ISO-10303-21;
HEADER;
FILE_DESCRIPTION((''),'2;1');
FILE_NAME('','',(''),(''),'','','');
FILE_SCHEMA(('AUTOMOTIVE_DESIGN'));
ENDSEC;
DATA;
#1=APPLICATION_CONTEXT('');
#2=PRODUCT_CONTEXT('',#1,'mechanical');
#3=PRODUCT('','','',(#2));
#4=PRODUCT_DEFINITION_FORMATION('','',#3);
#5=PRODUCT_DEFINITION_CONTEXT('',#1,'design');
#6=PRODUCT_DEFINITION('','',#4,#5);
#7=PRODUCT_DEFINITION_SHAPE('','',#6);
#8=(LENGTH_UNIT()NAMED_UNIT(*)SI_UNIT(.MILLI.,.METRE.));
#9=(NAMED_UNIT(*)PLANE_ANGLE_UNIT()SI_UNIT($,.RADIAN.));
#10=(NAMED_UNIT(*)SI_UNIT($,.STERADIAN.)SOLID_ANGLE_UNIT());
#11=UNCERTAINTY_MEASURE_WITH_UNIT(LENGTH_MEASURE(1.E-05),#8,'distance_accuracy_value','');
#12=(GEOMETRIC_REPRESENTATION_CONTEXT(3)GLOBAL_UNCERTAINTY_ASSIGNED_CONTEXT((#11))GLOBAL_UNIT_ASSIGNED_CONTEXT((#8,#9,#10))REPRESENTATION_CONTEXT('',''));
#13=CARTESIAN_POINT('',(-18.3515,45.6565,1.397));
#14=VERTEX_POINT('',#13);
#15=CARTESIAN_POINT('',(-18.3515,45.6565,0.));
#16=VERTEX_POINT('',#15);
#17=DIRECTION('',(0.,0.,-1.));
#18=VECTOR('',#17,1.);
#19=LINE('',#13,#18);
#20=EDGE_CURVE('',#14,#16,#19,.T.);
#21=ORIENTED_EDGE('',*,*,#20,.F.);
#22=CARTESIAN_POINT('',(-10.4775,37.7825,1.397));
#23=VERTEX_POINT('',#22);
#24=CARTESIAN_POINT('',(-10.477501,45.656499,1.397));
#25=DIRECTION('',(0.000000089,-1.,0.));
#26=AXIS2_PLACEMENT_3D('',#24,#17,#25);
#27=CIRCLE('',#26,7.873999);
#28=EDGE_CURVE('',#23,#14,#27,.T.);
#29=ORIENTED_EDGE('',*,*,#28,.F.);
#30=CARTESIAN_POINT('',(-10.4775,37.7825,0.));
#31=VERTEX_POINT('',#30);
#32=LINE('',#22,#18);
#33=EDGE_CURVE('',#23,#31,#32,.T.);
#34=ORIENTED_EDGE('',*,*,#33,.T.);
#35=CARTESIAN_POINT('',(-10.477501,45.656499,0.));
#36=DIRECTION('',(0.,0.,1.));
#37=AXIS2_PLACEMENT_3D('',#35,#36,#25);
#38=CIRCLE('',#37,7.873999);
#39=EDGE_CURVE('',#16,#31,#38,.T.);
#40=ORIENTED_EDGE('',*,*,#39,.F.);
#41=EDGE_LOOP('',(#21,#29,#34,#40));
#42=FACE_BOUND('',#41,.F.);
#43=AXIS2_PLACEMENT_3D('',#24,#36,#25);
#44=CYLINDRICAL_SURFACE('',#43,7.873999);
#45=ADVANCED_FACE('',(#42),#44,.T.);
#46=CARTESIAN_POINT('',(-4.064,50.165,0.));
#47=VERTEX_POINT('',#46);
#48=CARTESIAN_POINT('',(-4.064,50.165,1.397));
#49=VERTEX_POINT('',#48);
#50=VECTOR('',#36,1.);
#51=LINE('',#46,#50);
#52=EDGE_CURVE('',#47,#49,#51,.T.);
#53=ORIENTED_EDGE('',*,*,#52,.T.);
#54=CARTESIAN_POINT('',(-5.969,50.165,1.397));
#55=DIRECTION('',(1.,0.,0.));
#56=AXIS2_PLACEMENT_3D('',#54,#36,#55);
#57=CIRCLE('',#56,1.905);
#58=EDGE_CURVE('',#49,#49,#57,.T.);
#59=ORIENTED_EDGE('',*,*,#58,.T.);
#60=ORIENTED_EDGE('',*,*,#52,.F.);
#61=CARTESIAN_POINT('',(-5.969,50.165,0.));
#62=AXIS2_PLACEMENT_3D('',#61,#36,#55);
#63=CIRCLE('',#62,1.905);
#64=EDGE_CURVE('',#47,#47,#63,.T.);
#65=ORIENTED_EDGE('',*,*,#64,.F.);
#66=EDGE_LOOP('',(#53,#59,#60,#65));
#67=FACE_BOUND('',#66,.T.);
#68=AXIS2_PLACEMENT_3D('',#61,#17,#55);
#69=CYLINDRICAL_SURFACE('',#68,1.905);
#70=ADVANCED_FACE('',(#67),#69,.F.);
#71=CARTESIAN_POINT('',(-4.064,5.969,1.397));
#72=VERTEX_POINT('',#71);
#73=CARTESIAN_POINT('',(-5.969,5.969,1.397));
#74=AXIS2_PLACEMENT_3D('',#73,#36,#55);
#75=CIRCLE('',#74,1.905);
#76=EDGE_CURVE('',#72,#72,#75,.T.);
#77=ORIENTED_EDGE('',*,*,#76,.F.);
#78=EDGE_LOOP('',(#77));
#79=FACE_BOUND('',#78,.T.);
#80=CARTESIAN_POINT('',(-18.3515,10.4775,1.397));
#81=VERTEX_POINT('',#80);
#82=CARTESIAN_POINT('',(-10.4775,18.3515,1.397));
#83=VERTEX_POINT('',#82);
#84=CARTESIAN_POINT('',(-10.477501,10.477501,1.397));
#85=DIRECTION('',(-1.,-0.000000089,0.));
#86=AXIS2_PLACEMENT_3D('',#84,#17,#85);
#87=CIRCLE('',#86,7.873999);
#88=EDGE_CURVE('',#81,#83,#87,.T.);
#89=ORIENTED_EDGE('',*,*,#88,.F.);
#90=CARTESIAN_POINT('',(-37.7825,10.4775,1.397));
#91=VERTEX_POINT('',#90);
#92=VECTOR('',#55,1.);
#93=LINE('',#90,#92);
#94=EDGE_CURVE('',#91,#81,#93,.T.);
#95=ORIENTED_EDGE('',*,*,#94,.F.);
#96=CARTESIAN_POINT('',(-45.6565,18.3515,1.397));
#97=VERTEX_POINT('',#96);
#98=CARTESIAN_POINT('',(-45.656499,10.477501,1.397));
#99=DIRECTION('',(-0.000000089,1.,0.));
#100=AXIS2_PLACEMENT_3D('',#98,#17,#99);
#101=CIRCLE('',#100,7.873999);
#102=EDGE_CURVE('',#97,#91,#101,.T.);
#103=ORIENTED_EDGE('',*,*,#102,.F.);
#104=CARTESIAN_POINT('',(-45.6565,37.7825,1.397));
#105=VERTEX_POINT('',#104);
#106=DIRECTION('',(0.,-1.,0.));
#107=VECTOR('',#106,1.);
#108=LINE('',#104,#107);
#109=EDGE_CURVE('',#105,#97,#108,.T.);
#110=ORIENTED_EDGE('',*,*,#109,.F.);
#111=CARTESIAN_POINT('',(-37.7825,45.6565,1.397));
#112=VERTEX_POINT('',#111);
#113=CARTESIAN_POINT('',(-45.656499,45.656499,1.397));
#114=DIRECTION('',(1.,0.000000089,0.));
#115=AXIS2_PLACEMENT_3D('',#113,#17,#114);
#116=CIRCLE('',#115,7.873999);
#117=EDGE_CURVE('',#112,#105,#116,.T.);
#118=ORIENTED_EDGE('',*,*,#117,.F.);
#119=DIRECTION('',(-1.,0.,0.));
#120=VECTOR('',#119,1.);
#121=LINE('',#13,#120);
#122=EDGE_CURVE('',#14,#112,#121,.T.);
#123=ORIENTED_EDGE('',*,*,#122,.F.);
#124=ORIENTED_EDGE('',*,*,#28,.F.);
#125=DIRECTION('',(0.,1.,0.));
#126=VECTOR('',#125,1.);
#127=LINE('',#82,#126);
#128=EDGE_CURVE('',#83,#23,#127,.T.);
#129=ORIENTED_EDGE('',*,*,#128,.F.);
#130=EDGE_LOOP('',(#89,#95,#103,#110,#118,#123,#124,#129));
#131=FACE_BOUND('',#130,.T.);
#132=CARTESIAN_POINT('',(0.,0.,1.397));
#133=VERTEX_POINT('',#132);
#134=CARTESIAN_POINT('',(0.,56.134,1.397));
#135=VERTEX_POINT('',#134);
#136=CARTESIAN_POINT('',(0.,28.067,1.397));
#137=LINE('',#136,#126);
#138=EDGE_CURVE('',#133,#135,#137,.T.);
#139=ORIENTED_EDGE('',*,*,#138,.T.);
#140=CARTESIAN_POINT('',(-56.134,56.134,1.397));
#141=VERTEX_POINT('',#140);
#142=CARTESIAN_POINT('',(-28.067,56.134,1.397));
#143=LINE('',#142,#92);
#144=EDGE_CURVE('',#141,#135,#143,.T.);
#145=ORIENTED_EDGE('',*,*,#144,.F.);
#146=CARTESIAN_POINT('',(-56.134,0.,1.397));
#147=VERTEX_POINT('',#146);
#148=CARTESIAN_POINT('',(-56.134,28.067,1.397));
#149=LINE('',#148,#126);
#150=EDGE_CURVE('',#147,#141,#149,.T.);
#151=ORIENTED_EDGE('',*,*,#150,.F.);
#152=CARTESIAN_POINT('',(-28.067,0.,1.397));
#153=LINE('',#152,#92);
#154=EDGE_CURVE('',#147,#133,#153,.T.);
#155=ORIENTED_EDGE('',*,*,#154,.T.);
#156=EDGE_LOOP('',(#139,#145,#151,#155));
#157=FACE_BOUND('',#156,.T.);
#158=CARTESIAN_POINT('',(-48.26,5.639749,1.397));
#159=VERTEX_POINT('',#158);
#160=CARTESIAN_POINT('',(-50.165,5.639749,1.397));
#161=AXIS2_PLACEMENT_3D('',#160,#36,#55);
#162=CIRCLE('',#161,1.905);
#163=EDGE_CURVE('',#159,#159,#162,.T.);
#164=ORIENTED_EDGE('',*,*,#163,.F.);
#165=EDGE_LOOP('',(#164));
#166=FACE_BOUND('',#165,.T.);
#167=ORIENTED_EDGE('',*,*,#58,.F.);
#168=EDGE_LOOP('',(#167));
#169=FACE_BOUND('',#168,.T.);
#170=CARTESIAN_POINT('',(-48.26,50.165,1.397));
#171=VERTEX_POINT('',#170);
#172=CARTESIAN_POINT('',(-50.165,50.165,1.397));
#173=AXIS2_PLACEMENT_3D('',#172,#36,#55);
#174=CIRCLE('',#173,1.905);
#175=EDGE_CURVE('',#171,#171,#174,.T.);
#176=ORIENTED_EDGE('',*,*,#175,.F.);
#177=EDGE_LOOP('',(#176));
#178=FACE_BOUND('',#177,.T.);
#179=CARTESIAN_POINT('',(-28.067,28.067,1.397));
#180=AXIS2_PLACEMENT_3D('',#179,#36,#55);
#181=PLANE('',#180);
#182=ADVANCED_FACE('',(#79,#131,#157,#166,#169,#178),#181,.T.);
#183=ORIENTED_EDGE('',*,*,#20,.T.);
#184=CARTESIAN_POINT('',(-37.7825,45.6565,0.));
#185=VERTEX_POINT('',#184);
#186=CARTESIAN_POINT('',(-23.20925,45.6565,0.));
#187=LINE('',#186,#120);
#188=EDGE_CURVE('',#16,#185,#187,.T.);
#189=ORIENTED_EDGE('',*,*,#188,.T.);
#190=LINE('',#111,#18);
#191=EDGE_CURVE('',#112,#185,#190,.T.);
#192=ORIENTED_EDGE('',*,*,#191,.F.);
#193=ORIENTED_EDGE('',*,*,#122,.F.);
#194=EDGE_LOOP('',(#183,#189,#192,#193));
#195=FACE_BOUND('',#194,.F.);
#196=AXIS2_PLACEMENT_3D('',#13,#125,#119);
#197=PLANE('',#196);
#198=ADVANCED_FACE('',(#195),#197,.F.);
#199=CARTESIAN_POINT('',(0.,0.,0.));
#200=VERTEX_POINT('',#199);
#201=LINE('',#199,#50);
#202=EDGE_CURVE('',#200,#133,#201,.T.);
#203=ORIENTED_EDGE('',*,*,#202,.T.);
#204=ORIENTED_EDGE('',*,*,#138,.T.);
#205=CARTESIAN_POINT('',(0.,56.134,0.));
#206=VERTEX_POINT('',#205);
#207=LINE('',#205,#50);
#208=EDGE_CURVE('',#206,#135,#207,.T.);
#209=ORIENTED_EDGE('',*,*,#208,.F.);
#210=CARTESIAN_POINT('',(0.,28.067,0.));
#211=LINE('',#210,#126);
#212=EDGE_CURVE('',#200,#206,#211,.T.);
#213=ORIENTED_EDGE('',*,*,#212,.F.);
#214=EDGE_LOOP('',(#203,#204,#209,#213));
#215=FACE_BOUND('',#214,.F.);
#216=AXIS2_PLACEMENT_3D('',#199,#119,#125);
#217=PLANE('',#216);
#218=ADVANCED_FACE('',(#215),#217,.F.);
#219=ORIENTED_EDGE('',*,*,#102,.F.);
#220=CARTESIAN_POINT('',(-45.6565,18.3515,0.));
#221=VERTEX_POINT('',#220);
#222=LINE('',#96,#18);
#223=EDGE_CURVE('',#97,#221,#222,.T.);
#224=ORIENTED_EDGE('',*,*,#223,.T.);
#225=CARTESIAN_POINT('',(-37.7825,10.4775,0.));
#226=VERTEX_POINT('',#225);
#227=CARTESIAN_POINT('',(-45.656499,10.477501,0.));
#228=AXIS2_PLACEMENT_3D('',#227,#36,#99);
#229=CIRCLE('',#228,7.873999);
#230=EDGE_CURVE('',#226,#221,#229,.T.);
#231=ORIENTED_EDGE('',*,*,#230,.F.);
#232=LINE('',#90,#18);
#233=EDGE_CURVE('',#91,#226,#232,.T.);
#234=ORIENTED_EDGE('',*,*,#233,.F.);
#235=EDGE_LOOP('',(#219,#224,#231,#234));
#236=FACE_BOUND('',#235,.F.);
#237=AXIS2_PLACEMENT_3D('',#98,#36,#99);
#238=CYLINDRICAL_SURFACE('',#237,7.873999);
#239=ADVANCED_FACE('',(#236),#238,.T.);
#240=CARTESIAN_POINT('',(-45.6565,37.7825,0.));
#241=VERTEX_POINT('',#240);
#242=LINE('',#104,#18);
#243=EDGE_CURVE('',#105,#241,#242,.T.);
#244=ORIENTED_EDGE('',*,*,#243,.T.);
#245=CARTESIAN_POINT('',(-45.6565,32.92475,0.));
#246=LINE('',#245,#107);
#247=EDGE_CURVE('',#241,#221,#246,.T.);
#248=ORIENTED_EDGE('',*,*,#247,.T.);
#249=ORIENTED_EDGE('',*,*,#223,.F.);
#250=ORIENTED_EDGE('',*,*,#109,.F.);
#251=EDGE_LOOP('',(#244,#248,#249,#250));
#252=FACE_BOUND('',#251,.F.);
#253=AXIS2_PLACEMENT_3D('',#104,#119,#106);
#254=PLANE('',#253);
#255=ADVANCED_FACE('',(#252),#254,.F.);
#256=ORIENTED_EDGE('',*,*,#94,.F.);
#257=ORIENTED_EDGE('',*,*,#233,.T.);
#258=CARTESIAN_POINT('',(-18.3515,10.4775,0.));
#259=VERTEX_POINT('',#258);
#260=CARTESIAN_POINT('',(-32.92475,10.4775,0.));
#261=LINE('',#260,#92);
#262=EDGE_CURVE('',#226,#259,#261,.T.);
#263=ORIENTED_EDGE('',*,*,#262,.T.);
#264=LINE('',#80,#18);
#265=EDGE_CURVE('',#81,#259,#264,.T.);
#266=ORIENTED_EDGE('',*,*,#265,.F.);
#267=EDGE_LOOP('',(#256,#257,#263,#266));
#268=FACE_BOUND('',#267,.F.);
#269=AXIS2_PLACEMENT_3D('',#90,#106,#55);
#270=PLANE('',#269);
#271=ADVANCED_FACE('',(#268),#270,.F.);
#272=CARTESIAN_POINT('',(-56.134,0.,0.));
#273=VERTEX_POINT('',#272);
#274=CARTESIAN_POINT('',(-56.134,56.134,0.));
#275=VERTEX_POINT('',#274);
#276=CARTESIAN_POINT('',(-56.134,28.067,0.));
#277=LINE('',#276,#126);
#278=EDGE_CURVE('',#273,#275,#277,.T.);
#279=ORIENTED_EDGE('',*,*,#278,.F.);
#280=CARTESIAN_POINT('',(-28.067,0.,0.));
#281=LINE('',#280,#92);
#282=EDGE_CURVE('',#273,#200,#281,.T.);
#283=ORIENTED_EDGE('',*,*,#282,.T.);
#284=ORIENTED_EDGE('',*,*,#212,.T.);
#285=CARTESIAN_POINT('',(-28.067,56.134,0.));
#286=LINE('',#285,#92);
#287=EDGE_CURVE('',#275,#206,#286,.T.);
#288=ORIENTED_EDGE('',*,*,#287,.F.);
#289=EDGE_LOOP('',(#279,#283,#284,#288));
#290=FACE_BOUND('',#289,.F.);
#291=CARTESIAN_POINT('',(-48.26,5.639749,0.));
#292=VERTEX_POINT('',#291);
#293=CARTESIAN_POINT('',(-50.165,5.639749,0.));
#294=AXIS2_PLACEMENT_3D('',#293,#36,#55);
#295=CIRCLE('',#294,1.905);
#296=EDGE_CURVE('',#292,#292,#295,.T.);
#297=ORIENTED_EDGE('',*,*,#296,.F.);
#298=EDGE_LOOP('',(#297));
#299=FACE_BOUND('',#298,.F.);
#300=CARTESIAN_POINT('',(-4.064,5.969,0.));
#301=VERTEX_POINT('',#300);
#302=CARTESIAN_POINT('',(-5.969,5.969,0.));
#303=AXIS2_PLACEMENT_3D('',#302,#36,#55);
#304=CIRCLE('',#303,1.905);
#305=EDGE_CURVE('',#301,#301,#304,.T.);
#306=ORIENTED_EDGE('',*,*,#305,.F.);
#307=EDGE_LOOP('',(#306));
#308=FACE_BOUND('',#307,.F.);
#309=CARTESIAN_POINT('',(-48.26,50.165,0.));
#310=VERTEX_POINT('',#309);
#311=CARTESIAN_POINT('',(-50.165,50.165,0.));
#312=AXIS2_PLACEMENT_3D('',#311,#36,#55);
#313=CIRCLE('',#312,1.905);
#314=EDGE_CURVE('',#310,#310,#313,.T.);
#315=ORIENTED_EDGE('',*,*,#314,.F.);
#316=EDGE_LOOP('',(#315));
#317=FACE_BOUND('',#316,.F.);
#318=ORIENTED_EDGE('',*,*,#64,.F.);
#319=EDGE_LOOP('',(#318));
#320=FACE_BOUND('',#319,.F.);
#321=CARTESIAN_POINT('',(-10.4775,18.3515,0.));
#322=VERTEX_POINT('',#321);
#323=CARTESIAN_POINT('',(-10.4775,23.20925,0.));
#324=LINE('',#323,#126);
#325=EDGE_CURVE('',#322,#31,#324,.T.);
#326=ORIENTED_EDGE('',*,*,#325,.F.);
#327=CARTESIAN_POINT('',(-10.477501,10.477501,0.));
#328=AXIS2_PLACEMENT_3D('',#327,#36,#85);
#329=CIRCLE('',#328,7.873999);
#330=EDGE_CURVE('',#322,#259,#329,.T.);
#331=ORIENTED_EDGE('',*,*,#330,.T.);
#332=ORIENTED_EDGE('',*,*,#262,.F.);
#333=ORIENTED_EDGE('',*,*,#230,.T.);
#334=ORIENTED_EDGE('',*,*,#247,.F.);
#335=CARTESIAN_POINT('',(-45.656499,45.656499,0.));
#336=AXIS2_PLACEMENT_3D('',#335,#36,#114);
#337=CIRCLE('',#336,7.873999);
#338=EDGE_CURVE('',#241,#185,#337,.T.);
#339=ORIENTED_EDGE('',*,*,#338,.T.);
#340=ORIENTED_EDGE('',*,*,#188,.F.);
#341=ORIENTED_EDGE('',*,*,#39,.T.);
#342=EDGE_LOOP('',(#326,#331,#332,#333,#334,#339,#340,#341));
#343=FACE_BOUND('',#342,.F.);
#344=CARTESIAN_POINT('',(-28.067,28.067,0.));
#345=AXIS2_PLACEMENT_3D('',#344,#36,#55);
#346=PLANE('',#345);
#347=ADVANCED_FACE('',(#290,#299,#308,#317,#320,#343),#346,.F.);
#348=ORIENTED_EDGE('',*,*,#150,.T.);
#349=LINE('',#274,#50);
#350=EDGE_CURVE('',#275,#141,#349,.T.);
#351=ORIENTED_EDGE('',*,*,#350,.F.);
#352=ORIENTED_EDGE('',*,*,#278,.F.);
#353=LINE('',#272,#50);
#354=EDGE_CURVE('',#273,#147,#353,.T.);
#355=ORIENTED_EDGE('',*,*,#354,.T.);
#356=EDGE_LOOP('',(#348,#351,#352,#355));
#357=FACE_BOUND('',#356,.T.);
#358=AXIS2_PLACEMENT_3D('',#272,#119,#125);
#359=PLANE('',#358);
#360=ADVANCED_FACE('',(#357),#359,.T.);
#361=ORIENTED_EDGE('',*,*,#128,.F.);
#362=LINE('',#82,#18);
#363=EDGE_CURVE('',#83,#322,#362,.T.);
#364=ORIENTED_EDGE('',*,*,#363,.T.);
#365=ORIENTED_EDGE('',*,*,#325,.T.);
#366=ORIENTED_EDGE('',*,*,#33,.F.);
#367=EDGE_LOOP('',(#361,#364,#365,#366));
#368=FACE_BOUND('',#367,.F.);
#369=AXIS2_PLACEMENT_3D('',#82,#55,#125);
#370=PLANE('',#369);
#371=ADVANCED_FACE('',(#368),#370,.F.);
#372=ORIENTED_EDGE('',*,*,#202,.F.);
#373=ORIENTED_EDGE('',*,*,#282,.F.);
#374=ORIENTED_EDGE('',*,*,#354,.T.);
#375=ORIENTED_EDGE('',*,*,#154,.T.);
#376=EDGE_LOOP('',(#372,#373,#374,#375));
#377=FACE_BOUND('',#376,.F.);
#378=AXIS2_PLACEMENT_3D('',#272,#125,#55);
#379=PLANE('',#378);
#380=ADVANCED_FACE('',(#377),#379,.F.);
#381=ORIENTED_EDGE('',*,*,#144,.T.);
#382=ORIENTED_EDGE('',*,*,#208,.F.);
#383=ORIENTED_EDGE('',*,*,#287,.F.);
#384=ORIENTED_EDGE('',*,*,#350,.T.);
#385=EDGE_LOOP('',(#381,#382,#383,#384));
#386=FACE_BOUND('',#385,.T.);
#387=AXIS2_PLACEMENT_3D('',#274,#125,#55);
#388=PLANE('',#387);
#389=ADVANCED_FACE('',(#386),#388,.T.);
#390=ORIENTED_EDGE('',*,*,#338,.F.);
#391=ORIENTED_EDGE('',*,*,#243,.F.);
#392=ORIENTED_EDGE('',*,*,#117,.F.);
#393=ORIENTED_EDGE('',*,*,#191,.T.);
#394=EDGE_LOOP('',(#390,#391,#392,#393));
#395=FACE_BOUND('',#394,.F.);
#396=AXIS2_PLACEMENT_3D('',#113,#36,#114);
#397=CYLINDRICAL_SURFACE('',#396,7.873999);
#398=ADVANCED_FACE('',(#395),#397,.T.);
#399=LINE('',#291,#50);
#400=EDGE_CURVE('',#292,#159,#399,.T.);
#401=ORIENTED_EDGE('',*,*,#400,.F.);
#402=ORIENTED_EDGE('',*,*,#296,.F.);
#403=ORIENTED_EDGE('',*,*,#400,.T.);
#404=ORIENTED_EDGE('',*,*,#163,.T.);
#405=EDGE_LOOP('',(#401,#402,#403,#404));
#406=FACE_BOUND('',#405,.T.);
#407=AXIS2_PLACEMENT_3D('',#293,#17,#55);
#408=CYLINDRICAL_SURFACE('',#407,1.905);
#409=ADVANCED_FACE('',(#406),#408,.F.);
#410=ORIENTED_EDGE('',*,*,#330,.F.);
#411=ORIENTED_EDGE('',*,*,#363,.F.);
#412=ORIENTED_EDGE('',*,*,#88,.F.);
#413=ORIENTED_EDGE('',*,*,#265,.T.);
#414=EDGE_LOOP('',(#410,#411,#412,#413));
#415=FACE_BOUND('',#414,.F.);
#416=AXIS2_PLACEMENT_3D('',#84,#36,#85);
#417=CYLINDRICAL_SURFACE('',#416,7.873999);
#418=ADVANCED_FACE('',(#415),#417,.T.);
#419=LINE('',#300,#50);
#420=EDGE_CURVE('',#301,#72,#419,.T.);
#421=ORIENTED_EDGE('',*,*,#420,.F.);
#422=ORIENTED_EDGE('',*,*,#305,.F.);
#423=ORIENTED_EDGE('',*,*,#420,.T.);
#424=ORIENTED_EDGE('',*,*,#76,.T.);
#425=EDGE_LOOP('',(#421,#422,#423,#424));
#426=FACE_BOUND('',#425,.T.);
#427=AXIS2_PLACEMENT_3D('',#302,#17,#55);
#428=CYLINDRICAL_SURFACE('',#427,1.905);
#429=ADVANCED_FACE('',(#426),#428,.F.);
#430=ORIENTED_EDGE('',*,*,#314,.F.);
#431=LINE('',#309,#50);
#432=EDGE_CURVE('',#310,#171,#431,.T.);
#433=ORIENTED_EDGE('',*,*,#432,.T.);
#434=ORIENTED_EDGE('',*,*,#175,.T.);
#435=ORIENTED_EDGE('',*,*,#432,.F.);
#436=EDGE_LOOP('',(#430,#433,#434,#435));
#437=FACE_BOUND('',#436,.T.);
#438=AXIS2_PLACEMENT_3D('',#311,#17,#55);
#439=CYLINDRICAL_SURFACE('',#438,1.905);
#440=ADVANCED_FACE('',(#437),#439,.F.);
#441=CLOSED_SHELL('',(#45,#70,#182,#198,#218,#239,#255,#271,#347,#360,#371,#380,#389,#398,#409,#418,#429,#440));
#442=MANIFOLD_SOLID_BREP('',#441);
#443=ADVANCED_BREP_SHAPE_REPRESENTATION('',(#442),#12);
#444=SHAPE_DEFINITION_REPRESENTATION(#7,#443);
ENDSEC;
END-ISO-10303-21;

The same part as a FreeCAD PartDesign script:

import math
import FreeCAD as App
import Part
import Sketcher
from FreeCAD import Vector
Q = App.Units.Quantity


def add_polygon(sketch, points):
    """Adds a closed chain of lines whose ends are joined by coincident constraints."""
    first, n = sketch.GeometryCount, len(points)
    for a, b in zip(points, points[1:] + points[:1]):
        sketch.addGeometry(Part.LineSegment(App.Vector(*a, 0), App.Vector(*b, 0)), False)
    for i in range(n):
        sketch.addConstraint(Sketcher.Constraint("Coincident", first + i, 2, first + (i + 1) % n, 1))

doc = App.newDocument("Part")
body = doc.addObject("PartDesign::Body", "Body")

sketch1 = body.newObject("Sketcher::SketchObject", "Sketch")
sketch1.AttachmentSupport = (doc.getObject("XY_Plane"), [""])
sketch1.MapMode = "FlatFace"
add_polygon(sketch1, [(-56.1, 56.1), (-56.1, 0), (0, 0), (0, 56.1)])
sketch1.addGeometry(Part.Circle(Vector(-50.2, 5.6, 0), Vector(0, 0, 1), 1.9), False)
sketch1.addGeometry(Part.Circle(Vector(-6, 6, 0), Vector(0, 0, 1), 1.9), False)
sketch1.addGeometry(Part.Circle(Vector(-50.2, 50.2, 0), Vector(0, 0, 1), 1.9), False)
sketch1.addGeometry(Part.Circle(Vector(-6, 50.2, 0), Vector(0, 0, 1), 1.9), False)
sketch1.addConstraint([
    Sketcher.Constraint("Vertical", 0),
    Sketcher.Constraint("Horizontal", 1),
    Sketcher.Constraint("Vertical", 2),
    Sketcher.Constraint("Horizontal", 3),
    Sketcher.Constraint("Coincident", 1, 2, -1, 1),
    Sketcher.Constraint("Equal", 4, 5),
    Sketcher.Constraint("Equal", 5, 6),
    Sketcher.Constraint("Equal", 6, 7),
    Sketcher.Constraint("Horizontal", 6, 3, 7, 3),
    Sketcher.Constraint("Vertical", 4, 3, 6, 3),
    Sketcher.Constraint("Vertical", 5, 3, 7, 3),
    Sketcher.Constraint("Equal", 3, 0),
    Sketcher.Constraint("Diameter", 4, Q("0.15 in")),
    Sketcher.Constraint("DistanceX", 1, 1, 1, 2, Q("2.21 in")),
    Sketcher.Constraint("DistanceX", 4, 3, 5, 3, Q("1.74 in")),
    Sketcher.Constraint("DistanceY", 5, 3, 6, 3, Q("1.74 in")),
    Sketcher.Constraint("DistanceX", 4, 3, -1, 1, Q("1.975 in")),
    Sketcher.Constraint("DistanceY", -1, 1, 5, 3, Q("0.235 in")),
    Sketcher.Constraint("DistanceY", -1, 1, 4, 3, Q("5.639749 mm")),
])
pad1 = body.newObject("PartDesign::Pad", "Pad")
pad1.Profile = sketch1
pad1.Length = Q("0.055 in")

sketch2 = body.newObject("Sketcher::SketchObject", "Sketch001")
sketch2.AttachmentSupport = (doc.getObject("XY_Plane"), [""])
sketch2.MapMode = "FlatFace"
sketch2.AttachmentOffset = App.Placement(Vector(0, 0, 0.055 * 25.4), App.Rotation())
sketch2.addGeometry([
    Part.LineSegment(Vector(-18, 46, 0), Vector(-38, 46, 0)),
    Part.ArcOfCircle(Part.Circle(Vector(-46, 46, 0), Vector(0, 0, 1), 8), math.radians(-90), math.radians(0)),
    Part.LineSegment(Vector(-46, 38, 0), Vector(-46, 18, 0)),
    Part.ArcOfCircle(Part.Circle(Vector(-46, 10, 0), Vector(0, 0, 1), 8), math.radians(0), math.radians(90)),
    Part.LineSegment(Vector(-38, 10, 0), Vector(-18, 10, 0)),
    Part.ArcOfCircle(Part.Circle(Vector(-10, 10, 0), Vector(0, 0, 1), 8), math.radians(90), math.radians(180)),
    Part.LineSegment(Vector(-10, 18, 0), Vector(-10, 38, 0)),
    Part.ArcOfCircle(Part.Circle(Vector(-10, 46, 0), Vector(0, 0, 1), 8), math.radians(180), math.radians(270)),
], False)
sketch2.addConstraint([
    Sketcher.Constraint("Coincident", 0, 2, 1, 2),
    Sketcher.Constraint("Coincident", 1, 1, 2, 1),
    Sketcher.Constraint("Coincident", 2, 2, 3, 2),
    Sketcher.Constraint("Coincident", 3, 1, 4, 1),
    Sketcher.Constraint("Coincident", 4, 2, 5, 2),
    Sketcher.Constraint("Coincident", 5, 1, 6, 1),
    Sketcher.Constraint("Coincident", 6, 2, 7, 2),
    Sketcher.Constraint("Coincident", 7, 1, 0, 1),
    Sketcher.Constraint("Horizontal", 0),
    Sketcher.Constraint("Vertical", 2),
    Sketcher.Constraint("Horizontal", 4),
    Sketcher.Constraint("Vertical", 6),
    Sketcher.Constraint("Equal", 1, 3),
    Sketcher.Constraint("Equal", 3, 5),
    Sketcher.Constraint("Equal", 5, 7),
    Sketcher.Constraint("Horizontal", 3, 3, 5, 3),
    Sketcher.Constraint("Horizontal", 1, 3, 7, 3),
    Sketcher.Constraint("Horizontal", 7, 3, 0, 2),
    Sketcher.Constraint("Horizontal", 5, 3, 3, 1),
    Sketcher.Constraint("Vertical", 1, 3, 3, 3),
    Sketcher.Constraint("Vertical", 5, 3, 7, 3),
    Sketcher.Constraint("Vertical", 3, 3, 1, 1),
    Sketcher.Constraint("Vertical", 7, 3, 5, 1),
    Sketcher.Constraint("Equal", 4, 2),
    Sketcher.Constraint("Radius", 1, Q("0.31 in")),
    Sketcher.Constraint("DistanceX", 0, 2, 0, 1, Q("0.765 in")),
    Sketcher.Constraint("DistanceX", 1, 3, -1, 1, Q("1.7975 in")),
    Sketcher.Constraint("DistanceY", -1, 1, 1, 3, Q("1.7975 in")),
])
pocket1 = body.newObject("PartDesign::Pocket", "Pocket")
pocket1.Profile = sketch2
pocket1.Length = Q("1 in")

doc.recompute()
